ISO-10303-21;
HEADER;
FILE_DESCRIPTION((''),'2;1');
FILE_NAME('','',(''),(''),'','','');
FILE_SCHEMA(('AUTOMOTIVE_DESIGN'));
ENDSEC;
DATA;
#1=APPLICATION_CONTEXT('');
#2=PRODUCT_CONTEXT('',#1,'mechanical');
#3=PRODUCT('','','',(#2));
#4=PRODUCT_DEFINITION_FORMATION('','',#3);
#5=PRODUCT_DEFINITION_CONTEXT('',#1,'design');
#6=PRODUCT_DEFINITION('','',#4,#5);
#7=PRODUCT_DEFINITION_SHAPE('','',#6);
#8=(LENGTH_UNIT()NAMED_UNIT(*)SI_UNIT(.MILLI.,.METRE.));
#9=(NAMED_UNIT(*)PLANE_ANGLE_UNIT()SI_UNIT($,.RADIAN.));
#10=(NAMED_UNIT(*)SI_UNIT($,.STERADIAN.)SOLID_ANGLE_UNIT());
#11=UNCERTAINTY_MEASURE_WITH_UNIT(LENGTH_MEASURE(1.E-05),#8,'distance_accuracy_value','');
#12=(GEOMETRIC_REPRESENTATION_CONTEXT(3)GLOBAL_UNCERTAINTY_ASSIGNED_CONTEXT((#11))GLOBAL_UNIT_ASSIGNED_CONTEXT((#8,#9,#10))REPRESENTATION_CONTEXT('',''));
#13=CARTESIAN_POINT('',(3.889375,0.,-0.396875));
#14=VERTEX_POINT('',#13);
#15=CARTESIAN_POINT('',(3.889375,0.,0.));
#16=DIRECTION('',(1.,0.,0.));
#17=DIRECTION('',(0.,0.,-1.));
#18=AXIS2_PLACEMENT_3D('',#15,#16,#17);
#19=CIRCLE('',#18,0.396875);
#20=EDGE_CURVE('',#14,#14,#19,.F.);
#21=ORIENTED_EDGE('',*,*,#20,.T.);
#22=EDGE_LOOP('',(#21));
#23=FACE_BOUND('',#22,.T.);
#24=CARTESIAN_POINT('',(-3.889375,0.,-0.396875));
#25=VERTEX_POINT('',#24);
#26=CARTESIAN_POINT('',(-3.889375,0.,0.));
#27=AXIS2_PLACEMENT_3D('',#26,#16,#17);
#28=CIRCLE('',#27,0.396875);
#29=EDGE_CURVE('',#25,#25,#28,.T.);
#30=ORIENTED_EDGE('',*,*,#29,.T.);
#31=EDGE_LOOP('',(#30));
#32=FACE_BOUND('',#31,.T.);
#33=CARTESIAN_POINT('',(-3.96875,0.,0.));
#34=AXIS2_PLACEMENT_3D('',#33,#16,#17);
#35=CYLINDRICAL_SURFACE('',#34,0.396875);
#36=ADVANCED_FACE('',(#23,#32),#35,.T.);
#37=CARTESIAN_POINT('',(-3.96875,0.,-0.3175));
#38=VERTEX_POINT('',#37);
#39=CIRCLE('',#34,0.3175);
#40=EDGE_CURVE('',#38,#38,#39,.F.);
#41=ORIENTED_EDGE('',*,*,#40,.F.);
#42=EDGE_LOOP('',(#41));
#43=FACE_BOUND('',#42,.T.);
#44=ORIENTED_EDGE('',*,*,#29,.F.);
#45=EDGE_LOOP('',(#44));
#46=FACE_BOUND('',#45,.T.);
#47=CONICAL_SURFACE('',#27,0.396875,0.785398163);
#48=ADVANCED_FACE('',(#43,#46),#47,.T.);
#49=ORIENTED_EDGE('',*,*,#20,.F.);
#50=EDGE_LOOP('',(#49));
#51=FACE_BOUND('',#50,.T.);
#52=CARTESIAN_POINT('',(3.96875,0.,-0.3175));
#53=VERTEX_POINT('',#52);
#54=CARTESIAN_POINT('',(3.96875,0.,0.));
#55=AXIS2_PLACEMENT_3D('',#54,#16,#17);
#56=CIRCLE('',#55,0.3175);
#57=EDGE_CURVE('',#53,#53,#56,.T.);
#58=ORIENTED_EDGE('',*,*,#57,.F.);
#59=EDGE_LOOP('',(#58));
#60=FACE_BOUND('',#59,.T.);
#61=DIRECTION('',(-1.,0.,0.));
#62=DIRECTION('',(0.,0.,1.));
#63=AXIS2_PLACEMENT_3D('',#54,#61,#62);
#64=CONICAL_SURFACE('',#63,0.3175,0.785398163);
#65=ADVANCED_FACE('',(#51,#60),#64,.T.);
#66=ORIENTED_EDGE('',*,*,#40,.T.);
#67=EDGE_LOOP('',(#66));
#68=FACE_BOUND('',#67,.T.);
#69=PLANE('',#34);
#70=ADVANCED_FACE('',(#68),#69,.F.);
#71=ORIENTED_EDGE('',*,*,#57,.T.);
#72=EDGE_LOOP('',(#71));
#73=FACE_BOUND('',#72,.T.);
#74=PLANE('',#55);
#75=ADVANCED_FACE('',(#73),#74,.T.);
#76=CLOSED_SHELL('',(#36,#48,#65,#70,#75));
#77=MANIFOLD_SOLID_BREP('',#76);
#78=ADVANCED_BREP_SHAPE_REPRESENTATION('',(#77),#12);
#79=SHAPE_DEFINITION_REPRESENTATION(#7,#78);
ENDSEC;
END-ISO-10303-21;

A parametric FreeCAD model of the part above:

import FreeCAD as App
import Part
import Sketcher

V = App.Vector
Q = App.Units.Quantity


def edges_at(feature, points):
    """Names of the edges that pass closest to the given points."""
    edges = feature.Shape.Edges
    near = lambda p: min(range(len(edges)), key=lambda i: edges[i].distToShape(Part.Vertex(*p))[0])
    return sorted({f"Edge{near(p) + 1}" for p in points})

doc = App.newDocument("Part")
body = doc.addObject("PartDesign::Body", "Body")

# Sketch on YZ plane
sketch1 = body.newObject("Sketcher::SketchObject", "Sketch")
sketch1.AttachmentSupport = (doc.getObject("YZ_Plane"), [""])
sketch1.MapMode = "FlatFace"
sketch1.addGeometry(Part.Circle(V(0, 0, 0), V(0, 0, 1), 0.4), False)
sketch1.addConstraint(Sketcher.Constraint("Coincident", 0, 3, -1, 1))
sketch1.addConstraint(Sketcher.Constraint("Diameter", 0, Q("0.03125 in")))
pad1 = body.newObject("PartDesign::Pad", "Pad")
pad1.Profile = sketch1
pad1.Type = "TwoLengths"
pad1.Length = Q("0.15625 in")
pad1.Length2 = Q("0.15625 in")
doc.recompute()

chamfer = body.newObject("PartDesign::Chamfer", "Chamfer")
chamfer.Base = (pad1, edges_at(pad1, [(-3.969, 0, 0.397), (3.969, 0, 0.397)]))
chamfer.Size = 0.079375

doc.recompute()
